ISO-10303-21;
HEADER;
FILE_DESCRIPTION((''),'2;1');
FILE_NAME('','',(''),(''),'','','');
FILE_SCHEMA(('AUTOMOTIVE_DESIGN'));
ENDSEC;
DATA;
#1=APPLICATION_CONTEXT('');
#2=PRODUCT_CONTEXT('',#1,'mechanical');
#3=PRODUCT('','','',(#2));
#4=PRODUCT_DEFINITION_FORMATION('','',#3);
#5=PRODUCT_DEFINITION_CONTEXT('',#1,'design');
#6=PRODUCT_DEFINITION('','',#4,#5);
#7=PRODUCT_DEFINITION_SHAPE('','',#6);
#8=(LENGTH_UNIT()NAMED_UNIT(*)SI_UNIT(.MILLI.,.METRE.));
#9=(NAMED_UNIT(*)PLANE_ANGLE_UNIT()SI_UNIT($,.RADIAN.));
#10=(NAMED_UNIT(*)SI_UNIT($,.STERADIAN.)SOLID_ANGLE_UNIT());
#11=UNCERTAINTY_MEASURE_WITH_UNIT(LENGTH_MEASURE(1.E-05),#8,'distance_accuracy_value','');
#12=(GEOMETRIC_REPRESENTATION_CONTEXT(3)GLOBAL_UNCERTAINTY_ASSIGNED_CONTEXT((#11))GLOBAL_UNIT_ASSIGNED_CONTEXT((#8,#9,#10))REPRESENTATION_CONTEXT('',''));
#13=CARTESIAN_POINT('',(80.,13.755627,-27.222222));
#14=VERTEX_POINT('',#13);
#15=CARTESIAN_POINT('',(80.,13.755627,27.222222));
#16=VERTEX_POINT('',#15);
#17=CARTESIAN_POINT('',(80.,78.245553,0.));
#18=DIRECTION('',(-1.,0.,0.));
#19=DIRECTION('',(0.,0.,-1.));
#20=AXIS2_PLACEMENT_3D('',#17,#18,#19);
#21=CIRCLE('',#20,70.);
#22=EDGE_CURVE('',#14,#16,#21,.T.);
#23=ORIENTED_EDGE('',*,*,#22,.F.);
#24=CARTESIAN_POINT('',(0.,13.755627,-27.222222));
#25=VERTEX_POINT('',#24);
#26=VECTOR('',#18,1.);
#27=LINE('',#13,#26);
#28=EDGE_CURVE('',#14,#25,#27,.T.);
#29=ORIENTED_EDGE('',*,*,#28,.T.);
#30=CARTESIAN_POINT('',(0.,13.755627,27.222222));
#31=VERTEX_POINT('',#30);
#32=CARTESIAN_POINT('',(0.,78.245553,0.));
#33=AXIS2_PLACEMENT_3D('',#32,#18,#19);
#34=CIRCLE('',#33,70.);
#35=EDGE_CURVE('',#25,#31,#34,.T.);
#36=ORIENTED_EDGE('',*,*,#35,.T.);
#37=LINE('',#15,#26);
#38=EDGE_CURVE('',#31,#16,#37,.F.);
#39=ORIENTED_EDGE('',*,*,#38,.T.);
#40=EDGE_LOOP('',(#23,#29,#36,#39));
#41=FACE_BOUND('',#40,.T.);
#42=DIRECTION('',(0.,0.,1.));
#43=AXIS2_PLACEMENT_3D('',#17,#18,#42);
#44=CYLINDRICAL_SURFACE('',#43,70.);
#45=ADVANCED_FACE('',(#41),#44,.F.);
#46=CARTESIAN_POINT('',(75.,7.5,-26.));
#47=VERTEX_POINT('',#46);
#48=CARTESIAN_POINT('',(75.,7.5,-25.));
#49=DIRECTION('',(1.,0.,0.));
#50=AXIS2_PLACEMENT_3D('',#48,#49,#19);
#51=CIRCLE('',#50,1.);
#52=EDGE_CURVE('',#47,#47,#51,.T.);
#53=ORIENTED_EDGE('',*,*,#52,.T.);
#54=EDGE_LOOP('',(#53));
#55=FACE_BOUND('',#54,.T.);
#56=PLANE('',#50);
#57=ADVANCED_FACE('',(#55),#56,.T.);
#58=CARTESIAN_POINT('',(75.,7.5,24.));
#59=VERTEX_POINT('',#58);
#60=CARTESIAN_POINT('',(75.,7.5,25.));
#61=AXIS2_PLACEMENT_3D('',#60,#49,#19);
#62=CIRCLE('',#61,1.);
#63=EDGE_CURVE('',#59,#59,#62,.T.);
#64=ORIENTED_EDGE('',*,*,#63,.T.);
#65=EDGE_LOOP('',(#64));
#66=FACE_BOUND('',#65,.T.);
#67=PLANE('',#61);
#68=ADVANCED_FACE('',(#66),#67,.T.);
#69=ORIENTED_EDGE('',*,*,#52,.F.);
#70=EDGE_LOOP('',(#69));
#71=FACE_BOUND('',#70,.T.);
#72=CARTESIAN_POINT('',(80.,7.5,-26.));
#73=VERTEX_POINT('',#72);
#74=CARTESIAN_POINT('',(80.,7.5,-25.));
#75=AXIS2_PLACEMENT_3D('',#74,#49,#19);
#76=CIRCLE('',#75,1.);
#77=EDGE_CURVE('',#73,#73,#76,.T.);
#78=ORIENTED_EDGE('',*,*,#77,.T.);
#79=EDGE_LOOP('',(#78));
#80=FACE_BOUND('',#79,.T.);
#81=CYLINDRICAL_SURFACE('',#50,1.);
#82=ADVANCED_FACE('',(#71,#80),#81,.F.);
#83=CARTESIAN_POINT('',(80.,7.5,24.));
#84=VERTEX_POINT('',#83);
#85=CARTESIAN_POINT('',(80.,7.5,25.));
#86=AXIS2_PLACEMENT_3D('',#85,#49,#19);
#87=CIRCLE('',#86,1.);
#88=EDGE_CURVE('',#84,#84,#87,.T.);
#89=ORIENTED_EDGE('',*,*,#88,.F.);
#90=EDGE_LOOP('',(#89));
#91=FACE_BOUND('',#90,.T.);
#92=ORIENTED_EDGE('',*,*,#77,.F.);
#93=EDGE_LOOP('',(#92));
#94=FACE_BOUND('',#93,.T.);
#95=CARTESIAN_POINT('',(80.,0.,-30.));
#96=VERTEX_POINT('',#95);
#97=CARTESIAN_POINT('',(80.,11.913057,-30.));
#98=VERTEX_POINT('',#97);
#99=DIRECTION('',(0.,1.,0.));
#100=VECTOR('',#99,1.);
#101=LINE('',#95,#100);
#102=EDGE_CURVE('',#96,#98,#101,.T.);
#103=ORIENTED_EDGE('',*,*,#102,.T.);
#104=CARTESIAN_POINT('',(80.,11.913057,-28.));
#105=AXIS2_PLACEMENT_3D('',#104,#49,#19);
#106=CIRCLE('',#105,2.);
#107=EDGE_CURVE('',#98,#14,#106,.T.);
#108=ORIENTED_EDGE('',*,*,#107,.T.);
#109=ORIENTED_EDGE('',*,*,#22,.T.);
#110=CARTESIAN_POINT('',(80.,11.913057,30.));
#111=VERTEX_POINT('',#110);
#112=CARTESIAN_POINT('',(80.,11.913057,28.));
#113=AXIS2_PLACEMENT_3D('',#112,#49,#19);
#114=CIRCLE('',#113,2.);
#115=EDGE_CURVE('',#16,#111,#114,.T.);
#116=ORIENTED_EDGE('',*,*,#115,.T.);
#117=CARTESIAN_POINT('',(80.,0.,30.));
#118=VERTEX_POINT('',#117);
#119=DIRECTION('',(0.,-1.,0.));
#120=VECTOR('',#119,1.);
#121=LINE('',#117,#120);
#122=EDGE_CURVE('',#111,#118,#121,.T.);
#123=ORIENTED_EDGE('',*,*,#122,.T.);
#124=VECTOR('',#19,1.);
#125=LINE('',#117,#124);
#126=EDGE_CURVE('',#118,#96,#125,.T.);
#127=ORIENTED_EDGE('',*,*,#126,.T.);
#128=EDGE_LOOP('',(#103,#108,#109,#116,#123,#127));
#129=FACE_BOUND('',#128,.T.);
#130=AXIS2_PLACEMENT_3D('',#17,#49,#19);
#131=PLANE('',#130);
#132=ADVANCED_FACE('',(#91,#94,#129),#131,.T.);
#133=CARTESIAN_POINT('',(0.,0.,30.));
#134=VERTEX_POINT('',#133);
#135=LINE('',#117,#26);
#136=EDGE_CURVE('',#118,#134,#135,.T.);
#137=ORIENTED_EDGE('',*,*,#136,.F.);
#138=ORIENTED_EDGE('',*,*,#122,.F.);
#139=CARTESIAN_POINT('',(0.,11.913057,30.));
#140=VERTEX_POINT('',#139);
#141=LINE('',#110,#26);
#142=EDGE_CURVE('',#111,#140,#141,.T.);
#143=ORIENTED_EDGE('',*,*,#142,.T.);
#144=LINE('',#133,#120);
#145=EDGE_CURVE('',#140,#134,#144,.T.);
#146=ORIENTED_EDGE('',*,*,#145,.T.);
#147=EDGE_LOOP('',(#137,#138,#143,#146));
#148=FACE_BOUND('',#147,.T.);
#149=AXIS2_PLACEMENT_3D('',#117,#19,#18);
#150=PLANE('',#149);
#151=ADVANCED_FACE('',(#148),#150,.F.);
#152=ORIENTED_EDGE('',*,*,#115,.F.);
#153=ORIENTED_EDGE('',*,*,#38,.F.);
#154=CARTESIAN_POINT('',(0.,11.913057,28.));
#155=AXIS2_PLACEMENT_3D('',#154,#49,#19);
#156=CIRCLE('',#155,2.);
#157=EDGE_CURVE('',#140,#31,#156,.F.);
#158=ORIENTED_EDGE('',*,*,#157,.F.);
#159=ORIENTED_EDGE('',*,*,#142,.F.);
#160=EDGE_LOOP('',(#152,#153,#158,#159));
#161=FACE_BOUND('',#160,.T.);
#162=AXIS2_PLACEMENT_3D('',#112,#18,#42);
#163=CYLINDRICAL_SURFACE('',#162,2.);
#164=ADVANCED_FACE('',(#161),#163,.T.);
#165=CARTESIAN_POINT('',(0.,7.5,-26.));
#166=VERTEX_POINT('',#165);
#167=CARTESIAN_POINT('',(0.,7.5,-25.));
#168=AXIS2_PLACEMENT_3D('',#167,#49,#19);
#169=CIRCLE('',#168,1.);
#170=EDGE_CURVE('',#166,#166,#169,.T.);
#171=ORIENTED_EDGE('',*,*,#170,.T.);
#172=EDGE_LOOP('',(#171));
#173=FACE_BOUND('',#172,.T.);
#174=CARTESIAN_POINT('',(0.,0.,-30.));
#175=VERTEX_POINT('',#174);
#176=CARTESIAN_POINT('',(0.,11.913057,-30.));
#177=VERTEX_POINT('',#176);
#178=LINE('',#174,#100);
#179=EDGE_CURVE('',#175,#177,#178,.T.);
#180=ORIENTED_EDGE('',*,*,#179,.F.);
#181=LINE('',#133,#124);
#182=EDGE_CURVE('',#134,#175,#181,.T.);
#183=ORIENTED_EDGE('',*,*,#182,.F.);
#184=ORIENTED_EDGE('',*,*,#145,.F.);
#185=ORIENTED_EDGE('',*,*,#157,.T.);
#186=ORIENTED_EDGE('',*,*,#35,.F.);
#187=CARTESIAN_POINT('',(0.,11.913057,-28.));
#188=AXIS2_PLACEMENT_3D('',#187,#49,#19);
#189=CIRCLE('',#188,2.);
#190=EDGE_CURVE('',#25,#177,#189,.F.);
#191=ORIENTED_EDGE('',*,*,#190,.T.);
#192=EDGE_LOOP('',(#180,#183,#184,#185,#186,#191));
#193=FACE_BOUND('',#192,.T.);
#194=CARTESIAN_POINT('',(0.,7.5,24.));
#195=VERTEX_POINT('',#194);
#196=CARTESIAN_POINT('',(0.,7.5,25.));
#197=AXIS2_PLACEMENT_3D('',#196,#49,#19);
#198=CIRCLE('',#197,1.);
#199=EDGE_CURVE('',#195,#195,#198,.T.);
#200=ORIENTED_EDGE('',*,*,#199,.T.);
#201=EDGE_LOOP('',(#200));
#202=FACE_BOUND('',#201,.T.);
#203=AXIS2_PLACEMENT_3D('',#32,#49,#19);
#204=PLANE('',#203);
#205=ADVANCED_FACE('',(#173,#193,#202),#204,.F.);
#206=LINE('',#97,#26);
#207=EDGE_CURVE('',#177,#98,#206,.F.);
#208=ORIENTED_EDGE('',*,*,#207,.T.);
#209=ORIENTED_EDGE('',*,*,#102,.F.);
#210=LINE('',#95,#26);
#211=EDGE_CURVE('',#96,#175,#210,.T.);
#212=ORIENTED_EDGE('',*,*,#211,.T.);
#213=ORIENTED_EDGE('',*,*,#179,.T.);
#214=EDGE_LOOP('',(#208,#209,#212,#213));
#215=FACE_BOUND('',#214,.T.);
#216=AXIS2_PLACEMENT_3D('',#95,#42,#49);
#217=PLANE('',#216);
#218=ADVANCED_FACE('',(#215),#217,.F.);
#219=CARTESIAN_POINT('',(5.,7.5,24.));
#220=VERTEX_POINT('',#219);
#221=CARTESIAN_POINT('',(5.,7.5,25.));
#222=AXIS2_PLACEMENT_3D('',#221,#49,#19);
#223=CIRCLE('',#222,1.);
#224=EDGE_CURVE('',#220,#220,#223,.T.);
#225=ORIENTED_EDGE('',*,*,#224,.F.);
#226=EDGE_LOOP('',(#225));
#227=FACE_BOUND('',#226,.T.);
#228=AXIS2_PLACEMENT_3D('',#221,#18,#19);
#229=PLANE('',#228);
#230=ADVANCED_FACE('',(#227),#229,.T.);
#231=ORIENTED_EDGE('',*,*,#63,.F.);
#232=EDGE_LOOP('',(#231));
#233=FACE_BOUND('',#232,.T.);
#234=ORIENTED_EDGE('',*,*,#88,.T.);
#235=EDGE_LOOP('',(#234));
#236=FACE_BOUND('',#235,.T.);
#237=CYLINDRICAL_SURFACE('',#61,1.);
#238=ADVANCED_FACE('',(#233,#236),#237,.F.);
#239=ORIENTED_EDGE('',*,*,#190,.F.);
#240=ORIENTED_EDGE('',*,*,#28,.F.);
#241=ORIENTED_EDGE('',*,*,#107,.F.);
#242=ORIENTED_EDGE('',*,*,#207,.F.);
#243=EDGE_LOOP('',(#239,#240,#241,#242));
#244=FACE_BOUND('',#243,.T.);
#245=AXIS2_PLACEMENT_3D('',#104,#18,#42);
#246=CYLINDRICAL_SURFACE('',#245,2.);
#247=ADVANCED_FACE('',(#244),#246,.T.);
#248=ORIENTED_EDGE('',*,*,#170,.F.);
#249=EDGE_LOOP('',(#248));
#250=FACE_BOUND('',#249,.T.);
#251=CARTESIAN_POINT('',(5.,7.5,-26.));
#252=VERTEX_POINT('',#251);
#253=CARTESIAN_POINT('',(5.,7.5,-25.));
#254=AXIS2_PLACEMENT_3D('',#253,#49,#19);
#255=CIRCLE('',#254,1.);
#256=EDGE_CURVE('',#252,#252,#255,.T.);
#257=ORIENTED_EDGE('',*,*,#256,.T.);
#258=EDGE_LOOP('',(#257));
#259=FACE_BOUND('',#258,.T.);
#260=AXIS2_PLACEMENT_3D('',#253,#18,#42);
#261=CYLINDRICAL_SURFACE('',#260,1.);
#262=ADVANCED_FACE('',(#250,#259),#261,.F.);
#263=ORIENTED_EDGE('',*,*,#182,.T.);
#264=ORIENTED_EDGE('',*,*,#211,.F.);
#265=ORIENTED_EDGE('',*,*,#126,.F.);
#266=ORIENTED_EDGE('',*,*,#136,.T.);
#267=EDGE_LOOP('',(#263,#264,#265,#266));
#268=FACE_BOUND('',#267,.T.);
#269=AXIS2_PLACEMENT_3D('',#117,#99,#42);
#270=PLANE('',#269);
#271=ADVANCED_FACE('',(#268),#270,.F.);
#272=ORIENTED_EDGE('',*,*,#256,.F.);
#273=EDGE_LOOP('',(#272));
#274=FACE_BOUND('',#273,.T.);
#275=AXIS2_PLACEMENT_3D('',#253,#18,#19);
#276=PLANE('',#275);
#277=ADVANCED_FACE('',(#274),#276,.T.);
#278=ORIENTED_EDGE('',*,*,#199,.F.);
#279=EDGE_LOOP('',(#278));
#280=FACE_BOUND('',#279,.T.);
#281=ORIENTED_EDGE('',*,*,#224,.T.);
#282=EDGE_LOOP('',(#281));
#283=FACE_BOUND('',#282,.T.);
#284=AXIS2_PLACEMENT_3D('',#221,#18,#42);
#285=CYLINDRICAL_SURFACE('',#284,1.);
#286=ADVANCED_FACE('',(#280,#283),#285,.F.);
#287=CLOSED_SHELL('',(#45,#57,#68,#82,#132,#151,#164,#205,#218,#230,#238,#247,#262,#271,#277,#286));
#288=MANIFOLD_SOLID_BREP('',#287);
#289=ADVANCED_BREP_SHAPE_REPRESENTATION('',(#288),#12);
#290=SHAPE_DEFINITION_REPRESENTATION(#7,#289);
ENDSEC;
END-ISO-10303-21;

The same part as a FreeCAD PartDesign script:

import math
import FreeCAD as App
import Part
import Sketcher

V = App.Vector


def edges_at(feature, points):
    """Names of the edges that pass closest to the given points."""
    edges = feature.Shape.Edges
    near = lambda p: min(range(len(edges)), key=lambda i: edges[i].distToShape(Part.Vertex(*p))[0])
    return sorted({f"Edge{near(p) + 1}" for p in points})

doc = App.newDocument("Part")
body = doc.addObject("PartDesign::Body", "Body")

sketch1 = body.newObject("Sketcher::SketchObject", "Sketch")
sketch1.AttachmentSupport = (doc.getObject("YZ_Plane"), [""])
sketch1.MapMode = "FlatFace"
sketch1.addGeometry(Part.LineSegment(V(0, 30, 0), V(0, -30, 0)), False)
sketch1.addGeometry(Part.LineSegment(V(0, -30, 0), V(15, -30, 0)), False)
sketch1.addGeometry(Part.ArcOfCircle(Part.Circle(V(78.245553, 0, 0), V(0, 0, 1), 70), math.radians(154.623066), math.radians(205.376934)), False)
sketch1.addGeometry(Part.LineSegment(V(15, 30, 0), V(0, 30, 0)), False)
sketch1.addConstraint(Sketcher.Constraint("Coincident", 0, 2, 1, 1))
sketch1.addConstraint(Sketcher.Constraint("Coincident", 1, 2, 2, 2))
sketch1.addConstraint(Sketcher.Constraint("Coincident", 2, 1, 3, 1))
sketch1.addConstraint(Sketcher.Constraint("Coincident", 3, 2, 0, 1))
sketch1.addConstraint(Sketcher.Constraint("Vertical", 0))
sketch1.addConstraint(Sketcher.Constraint("Horizontal", 1))
sketch1.addConstraint(Sketcher.Constraint("Horizontal", 3))
sketch1.addConstraint(Sketcher.Constraint("Symmetric", 0, 2, 3, 2, -1, 1))
sketch1.addConstraint(Sketcher.Constraint("PointOnObject", 2, 3, -1))
sketch1.addConstraint(Sketcher.Constraint("Radius", 2, 70.0))
sketch1.addConstraint(Sketcher.Constraint("DistanceX", 1, 1, 1, 2, 15.0))
sketch1.addConstraint(Sketcher.Constraint("DistanceY", 0, 2, 0, 1, 60.0))
pad1 = body.newObject("PartDesign::Pad", "Pad")
pad1.Profile = sketch1
pad1.Length = 80
doc.recompute()

fillet = body.newObject("PartDesign::Fillet", "Fillet")
fillet.Base = (pad1, edges_at(pad1, [(40, 15, 30), (40, 15, -30)]))
fillet.Radius = 2

sketch2 = body.newObject("Sketcher::SketchObject", "Sketch001")
sketch2.AttachmentSupport = (doc.getObject("YZ_Plane"), [""])
sketch2.MapMode = "FlatFace"
sketch2.AttachmentOffset = App.Placement(V(0, 0, 80), App.Rotation())
sketch2.addGeometry(Part.Circle(V(7.5, 25, 0), V(0, 0, 1), 1), False)
sketch2.addGeometry(Part.Circle(V(7.5, -25, 0), V(0, 0, 1), 1), False)
sketch2.addConstraint(Sketcher.Constraint("Equal", 0, 1))
sketch2.addConstraint(Sketcher.Constraint("Symmetric", 0, 3, 1, 3, -1))
sketch2.addConstraint(Sketcher.Constraint("Diameter", 0, 2.0))
sketch2.addConstraint(Sketcher.Constraint("DistanceY", -1, 1, 0, 3, 25.0))
sketch2.addConstraint(Sketcher.Constraint("DistanceX", -1, 1, 0, 3, 7.5))
pocket1 = body.newObject("PartDesign::Pocket", "Pocket")
pocket1.Profile = sketch2
pocket1.Length = 5
doc.recompute()

datumplane = body.newObject("PartDesign::Plane", "DatumPlane")
datumplane.AttachmentSupport = (doc.getObject("YZ_Plane"), [""])
datumplane.MapMode = "FlatFace"
datumplane.AttachmentOffset = App.Placement(V(0, 0, 40), App.Rotation())
mirrored = body.newObject("PartDesign::Mirrored", "Mirrored")
mirrored.Originals = [pocket1]
mirrored.MirrorPlane = (datumplane, [""])
body.Tip = mirrored

doc.recompute()
